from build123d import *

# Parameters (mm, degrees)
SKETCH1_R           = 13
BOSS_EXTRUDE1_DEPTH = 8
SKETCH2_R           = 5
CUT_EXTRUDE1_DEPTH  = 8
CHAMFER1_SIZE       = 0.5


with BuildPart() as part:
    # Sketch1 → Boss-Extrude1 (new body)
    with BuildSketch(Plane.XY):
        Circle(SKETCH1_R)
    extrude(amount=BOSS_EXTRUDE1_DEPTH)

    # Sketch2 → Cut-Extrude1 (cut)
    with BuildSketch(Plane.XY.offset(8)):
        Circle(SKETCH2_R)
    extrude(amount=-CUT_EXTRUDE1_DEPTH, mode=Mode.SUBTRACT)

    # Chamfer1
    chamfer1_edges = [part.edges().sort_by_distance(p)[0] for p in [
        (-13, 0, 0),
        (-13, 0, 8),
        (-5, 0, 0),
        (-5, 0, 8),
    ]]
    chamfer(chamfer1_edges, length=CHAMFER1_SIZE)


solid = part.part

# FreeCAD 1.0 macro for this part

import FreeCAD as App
import Part
import Sketcher
from FreeCAD import Vector


def edges_at(feature, points):
    """Names of the edges that pass closest to the given points."""
    edges = feature.Shape.Edges
    near = lambda p: min(range(len(edges)), key=lambda i: edges[i].distToShape(Part.Vertex(*p))[0])
    return sorted({f"Edge{near(p) + 1}" for p in points})

doc = App.newDocument("Part")
body = doc.addObject("PartDesign::Body", "Body")

# Sketch on XY plane
sketch1 = doc.addObject("Sketcher::SketchObject", "Sketch")
body.addObject(sketch1)
sketch1.AttachmentSupport = (doc.XY_Plane, [""])
sketch1.MapMode = "FlatFace"
sketch1.addGeometry(Part.Circle(Vector(0, 0, 0), Vector(0, 0, 1), 13), False)
sketch1.addConstraint(Sketcher.Constraint("Coincident", 0, 3, -1, 1))
sketch1.addConstraint(Sketcher.Constraint("Diameter", 0, 26.0))
pad1 = doc.addObject("PartDesign::Pad", "Pad")
body.addObject(pad1)
pad1.Profile = sketch1
pad1.Length = 8

# Sketch on XY plane
sketch2 = doc.addObject("Sketcher::SketchObject", "Sketch001")
body.addObject(sketch2)
sketch2.AttachmentSupport = (doc.XY_Plane, [""])
sketch2.MapMode = "FlatFace"
sketch2.AttachmentOffset = App.Placement(Vector(0, 0, 8), App.Rotation())
sketch2.addGeometry(Part.Circle(Vector(0, 0, 0), Vector(0, 0, 1), 5), False)
sketch2.addConstraint(Sketcher.Constraint("Coincident", 0, 3, -1, 1))
sketch2.addConstraint(Sketcher.Constraint("Diameter", 0, 10.0))
pocket1 = doc.addObject("PartDesign::Pocket", "Pocket")
body.addObject(pocket1)
pocket1.Profile = sketch2
pocket1.Length = 8
doc.recompute()

chamfer = doc.addObject("PartDesign::Chamfer", "Chamfer")
body.addObject(chamfer)
chamfer.Base = (pocket1, edges_at(pocket1, [
    (-13, 0, 0),
    (-13, 0, 8),
    (-5, 0, 0),
    (-5, 0, 8),
]))
chamfer.Size = 0.5

doc.recompute()
